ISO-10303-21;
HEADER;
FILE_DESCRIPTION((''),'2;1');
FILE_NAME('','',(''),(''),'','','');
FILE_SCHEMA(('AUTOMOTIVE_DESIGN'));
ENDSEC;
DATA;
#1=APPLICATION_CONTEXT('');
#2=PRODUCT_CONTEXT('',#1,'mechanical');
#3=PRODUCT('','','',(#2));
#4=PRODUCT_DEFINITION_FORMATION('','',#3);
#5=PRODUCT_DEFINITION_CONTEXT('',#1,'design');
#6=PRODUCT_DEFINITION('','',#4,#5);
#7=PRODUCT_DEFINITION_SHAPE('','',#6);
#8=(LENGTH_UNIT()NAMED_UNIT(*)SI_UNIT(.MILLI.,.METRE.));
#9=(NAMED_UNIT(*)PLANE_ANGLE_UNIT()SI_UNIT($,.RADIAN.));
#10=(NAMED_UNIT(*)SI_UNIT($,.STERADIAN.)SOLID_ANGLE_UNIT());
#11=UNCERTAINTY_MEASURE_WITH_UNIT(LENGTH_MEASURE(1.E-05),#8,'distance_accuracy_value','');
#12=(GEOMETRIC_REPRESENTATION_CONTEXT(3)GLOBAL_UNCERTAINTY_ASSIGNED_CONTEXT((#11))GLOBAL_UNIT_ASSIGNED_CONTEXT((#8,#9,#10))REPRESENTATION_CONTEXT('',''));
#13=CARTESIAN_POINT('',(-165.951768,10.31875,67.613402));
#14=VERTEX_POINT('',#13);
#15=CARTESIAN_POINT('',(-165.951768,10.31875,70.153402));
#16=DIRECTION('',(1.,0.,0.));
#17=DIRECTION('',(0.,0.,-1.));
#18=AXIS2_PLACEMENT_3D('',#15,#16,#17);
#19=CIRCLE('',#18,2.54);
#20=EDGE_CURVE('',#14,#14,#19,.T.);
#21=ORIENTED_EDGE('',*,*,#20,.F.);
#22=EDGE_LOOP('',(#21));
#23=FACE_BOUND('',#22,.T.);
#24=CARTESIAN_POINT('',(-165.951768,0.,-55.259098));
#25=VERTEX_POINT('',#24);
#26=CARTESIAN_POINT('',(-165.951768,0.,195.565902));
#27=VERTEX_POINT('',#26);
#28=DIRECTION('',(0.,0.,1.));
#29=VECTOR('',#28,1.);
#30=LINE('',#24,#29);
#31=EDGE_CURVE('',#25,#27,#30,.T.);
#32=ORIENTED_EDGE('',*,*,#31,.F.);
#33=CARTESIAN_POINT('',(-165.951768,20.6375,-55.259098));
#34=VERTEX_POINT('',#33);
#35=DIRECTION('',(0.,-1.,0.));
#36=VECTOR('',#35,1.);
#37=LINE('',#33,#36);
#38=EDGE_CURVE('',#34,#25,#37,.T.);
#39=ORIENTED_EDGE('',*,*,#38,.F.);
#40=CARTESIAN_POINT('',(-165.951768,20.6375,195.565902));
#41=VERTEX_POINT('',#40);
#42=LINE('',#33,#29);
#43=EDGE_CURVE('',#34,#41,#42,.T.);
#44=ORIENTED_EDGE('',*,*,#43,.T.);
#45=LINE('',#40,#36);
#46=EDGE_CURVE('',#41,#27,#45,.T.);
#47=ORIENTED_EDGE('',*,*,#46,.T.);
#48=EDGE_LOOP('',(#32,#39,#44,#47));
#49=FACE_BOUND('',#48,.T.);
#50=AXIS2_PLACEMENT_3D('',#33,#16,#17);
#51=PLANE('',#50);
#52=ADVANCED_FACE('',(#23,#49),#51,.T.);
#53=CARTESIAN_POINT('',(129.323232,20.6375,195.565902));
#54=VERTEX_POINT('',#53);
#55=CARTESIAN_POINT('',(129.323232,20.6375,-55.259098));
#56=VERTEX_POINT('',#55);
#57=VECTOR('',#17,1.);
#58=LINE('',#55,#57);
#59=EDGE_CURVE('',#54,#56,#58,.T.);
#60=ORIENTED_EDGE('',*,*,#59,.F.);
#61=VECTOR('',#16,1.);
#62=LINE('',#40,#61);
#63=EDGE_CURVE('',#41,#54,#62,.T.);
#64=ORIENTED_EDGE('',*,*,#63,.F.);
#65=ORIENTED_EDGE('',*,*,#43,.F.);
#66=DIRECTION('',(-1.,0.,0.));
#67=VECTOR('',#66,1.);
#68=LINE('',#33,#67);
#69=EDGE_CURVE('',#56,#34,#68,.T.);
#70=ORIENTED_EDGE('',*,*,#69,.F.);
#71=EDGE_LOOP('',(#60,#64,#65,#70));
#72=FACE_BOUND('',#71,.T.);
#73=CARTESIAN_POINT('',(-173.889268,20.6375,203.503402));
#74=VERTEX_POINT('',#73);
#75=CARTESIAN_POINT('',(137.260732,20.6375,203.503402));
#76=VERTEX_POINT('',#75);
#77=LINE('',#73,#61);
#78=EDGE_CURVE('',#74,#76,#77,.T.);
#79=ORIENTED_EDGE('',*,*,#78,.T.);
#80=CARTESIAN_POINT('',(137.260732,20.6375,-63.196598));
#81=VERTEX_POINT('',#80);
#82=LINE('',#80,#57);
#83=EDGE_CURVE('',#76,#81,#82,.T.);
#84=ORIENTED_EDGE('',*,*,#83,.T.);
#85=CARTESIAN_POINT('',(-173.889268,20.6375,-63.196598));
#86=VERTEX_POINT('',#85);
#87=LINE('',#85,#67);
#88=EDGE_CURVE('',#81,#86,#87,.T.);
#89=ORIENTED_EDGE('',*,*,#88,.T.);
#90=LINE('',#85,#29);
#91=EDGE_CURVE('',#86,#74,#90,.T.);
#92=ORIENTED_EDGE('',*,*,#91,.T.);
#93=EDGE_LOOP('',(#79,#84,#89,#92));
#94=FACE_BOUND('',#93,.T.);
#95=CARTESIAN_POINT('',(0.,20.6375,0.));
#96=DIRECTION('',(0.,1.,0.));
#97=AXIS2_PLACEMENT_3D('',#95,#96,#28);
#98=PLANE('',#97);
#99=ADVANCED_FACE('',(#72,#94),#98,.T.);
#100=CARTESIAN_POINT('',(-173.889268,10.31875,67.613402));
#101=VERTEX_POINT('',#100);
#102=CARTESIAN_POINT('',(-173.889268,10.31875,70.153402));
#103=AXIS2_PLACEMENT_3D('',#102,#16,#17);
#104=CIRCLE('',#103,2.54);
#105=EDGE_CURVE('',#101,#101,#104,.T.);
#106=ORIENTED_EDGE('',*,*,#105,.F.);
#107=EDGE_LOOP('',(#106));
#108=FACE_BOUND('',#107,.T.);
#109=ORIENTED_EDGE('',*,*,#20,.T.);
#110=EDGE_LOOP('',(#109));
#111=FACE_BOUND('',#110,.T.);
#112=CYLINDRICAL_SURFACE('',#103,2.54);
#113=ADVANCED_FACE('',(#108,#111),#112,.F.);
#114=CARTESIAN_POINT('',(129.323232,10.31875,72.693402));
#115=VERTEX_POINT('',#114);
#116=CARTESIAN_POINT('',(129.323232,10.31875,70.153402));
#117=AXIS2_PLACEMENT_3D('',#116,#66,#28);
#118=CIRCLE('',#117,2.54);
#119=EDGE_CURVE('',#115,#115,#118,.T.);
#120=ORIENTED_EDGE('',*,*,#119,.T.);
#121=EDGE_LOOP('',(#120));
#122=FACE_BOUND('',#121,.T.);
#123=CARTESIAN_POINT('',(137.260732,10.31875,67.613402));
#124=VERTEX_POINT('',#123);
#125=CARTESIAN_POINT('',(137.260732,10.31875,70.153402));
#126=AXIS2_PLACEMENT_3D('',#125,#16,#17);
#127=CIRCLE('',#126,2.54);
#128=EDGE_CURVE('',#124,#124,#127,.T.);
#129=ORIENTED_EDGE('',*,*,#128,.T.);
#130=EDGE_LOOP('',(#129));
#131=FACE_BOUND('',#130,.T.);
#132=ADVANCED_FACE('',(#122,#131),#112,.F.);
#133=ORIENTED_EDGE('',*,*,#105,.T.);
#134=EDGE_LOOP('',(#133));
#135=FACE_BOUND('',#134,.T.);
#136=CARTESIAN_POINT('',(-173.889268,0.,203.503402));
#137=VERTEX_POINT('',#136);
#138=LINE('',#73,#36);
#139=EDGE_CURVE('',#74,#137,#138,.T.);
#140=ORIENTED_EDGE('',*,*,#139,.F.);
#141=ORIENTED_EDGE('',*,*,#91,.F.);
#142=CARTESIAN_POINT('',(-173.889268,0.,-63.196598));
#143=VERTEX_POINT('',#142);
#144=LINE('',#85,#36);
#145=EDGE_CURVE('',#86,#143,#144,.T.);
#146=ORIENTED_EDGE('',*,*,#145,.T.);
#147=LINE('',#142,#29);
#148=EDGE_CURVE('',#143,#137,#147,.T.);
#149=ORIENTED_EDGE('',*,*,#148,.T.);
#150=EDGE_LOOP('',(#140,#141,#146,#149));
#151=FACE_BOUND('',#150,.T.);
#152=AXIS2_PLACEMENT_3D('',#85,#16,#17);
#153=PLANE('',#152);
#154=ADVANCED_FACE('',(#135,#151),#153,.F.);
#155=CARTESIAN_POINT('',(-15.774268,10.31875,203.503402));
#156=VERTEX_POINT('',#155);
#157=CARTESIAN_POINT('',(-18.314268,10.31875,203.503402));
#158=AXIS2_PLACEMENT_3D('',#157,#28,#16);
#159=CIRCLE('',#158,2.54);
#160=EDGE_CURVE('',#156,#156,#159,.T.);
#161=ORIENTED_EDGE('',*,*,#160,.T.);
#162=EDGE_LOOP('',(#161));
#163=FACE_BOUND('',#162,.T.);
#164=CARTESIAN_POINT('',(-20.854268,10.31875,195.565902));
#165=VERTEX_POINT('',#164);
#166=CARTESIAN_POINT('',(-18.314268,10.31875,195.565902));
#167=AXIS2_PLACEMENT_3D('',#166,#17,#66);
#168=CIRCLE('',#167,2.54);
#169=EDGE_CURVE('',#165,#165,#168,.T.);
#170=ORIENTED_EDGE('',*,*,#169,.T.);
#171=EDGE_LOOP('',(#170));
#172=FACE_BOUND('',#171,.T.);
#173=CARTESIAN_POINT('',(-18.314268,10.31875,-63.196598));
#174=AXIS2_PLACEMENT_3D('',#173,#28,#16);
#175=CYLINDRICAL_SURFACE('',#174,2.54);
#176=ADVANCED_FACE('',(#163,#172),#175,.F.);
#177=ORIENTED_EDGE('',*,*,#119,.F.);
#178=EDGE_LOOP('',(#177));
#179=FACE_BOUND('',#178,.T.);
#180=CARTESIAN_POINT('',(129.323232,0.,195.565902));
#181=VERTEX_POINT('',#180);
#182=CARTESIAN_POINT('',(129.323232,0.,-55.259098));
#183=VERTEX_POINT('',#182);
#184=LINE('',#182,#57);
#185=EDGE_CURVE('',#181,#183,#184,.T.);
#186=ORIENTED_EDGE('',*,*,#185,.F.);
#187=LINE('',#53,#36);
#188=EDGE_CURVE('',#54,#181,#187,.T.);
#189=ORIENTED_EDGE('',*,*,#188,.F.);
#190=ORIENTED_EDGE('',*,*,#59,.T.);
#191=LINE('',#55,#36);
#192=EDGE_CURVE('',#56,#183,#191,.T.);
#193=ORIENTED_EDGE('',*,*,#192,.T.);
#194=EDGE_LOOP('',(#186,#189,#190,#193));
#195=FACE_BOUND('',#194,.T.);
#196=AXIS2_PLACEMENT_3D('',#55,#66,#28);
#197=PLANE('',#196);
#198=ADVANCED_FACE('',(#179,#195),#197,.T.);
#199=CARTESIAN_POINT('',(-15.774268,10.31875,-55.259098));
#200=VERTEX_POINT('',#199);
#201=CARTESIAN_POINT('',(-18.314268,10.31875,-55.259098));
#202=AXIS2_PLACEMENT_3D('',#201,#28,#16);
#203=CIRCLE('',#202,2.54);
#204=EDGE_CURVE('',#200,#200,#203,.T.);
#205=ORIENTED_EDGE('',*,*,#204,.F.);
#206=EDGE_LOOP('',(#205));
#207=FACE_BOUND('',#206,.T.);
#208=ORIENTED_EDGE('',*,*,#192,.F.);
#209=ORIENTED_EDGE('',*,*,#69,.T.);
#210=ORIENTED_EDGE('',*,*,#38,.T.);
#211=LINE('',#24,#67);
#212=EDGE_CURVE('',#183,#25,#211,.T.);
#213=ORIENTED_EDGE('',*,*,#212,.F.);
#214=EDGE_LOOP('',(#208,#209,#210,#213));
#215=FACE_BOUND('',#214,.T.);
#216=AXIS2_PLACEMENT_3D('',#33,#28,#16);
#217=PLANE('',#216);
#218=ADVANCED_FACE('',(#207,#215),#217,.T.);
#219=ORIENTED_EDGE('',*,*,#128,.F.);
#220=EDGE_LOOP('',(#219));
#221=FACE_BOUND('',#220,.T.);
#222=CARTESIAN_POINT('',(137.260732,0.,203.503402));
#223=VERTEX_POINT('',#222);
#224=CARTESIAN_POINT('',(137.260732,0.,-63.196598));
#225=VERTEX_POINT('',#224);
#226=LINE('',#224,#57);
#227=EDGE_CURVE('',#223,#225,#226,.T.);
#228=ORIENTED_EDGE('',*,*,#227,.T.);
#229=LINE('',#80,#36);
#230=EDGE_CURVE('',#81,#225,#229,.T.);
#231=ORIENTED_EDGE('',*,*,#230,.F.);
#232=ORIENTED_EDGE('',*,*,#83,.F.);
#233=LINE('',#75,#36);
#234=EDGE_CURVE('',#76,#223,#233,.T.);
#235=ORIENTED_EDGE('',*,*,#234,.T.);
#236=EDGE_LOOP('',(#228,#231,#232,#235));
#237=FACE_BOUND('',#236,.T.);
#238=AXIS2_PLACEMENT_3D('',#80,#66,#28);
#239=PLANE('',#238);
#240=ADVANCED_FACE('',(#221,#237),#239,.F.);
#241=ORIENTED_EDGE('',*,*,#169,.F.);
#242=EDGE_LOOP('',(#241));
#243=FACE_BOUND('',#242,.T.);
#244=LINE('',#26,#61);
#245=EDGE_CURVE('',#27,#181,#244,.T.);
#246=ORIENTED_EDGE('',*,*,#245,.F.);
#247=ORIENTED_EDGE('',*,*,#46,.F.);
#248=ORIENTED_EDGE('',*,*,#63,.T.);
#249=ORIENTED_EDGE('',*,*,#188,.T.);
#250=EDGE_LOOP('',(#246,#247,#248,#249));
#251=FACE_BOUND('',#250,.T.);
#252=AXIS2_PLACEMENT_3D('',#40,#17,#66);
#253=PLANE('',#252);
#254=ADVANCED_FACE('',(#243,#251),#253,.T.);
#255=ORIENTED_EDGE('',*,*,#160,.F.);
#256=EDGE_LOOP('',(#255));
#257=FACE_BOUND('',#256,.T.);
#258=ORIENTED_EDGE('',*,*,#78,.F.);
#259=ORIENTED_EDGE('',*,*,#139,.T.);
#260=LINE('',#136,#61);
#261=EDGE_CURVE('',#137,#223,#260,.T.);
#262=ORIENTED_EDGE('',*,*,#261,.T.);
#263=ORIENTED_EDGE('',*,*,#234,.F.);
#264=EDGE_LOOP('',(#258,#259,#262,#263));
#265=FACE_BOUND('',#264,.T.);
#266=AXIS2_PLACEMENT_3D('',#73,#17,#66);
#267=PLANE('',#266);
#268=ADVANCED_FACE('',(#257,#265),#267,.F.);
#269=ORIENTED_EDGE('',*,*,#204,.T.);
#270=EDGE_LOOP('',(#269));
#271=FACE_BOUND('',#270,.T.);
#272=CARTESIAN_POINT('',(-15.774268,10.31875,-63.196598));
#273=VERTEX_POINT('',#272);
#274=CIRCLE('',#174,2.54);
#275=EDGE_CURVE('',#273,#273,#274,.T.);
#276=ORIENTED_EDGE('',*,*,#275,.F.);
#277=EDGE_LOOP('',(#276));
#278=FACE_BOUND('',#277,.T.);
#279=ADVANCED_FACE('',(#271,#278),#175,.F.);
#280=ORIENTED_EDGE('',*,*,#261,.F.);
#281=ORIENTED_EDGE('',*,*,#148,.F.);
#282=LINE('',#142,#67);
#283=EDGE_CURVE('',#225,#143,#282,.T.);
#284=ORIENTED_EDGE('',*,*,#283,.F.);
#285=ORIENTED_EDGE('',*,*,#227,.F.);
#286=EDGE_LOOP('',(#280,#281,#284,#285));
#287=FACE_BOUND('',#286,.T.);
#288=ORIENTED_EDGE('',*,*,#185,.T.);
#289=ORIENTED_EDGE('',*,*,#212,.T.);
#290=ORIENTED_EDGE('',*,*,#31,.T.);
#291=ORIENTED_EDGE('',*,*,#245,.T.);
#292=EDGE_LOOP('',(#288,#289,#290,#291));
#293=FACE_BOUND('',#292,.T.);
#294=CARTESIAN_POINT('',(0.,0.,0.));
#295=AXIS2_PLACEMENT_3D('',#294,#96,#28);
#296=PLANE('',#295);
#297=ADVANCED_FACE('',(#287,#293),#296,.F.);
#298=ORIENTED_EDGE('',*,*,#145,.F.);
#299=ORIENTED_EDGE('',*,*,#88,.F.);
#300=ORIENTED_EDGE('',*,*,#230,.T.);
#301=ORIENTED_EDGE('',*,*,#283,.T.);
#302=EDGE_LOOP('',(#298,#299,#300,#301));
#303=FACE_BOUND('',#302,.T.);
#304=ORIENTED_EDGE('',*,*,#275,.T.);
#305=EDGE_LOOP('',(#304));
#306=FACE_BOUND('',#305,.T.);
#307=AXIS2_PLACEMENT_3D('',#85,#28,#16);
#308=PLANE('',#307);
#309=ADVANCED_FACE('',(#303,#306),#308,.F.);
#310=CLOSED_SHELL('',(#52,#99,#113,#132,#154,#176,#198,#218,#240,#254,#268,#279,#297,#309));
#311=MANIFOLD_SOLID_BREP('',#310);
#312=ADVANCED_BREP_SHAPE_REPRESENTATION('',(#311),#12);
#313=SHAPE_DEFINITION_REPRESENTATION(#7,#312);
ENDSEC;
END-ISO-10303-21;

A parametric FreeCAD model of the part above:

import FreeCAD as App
import Part
import Sketcher

V = App.Vector
Q = App.Units.Quantity


def add_polygon(sketch, points):
    """Adds a closed chain of lines whose ends are joined by coincident constraints."""
    first, n = sketch.GeometryCount, len(points)
    for a, b in zip(points, points[1:] + points[:1]):
        sketch.addGeometry(Part.LineSegment(App.Vector(*a, 0), App.Vector(*b, 0)), False)
    for i in range(n):
        sketch.addConstraint(Sketcher.Constraint("Coincident", first + i, 2, first + (i + 1) % n, 1))

doc = App.newDocument("Part")
body = doc.addObject("PartDesign::Body", "Body")

sketch1 = body.newObject("Sketcher::SketchObject", "Sketch")
sketch1.AttachmentSupport = (doc.getObject("XZ_Plane"), [""])
sketch1.MapMode = "FlatFace"
add_polygon(sketch1, [(-173.889268, -63.196598), (-173.889268, 203.503402), (137.260732, 203.503402), (137.260732, -63.196598)])
add_polygon(sketch1, [(129.323232, 195.565902), (-165.951768, 195.565902), (-165.951768, -55.259098), (129.323232, -55.259098)])
sketch1.addConstraint(Sketcher.Constraint("Vertical", 0))
sketch1.addConstraint(Sketcher.Constraint("Horizontal", 1))
sketch1.addConstraint(Sketcher.Constraint("Vertical", 2))
sketch1.addConstraint(Sketcher.Constraint("Horizontal", 3))
sketch1.addConstraint(Sketcher.Constraint("Horizontal", 4))
sketch1.addConstraint(Sketcher.Constraint("Vertical", 5))
sketch1.addConstraint(Sketcher.Constraint("Horizontal", 6))
sketch1.addConstraint(Sketcher.Constraint("Vertical", 7))
sketch1.addConstraint(Sketcher.Constraint("DistanceY", 0, 1, 0, 2, Q("10.5 in")))
sketch1.addConstraint(Sketcher.Constraint("DistanceX", 1, 1, 1, 2, Q("12.25 in")))
sketch1.addConstraint(Sketcher.Constraint("DistanceX", 4, 2, 4, 1, Q("11.625 in")))
sketch1.addConstraint(Sketcher.Constraint("DistanceY", 5, 2, 5, 1, Q("9.875 in")))
sketch1.addConstraint(Sketcher.Constraint("DistanceX", 0, 2, 4, 2, Q("0.3125 in")))
sketch1.addConstraint(Sketcher.Constraint("DistanceY", 4, 2, 0, 2, Q("0.3125 in")))
sketch1.addConstraint(Sketcher.Constraint("DistanceY", -1, 1, 0, 2, Q("203.503402 mm")))
sketch1.addConstraint(Sketcher.Constraint("DistanceX", 0, 2, -1, 1, Q("173.889268 mm")))
pad1 = body.newObject("PartDesign::Pad", "Pad")
pad1.Profile = sketch1
pad1.Length = Q("0.8125 in")
pad1.Reversed = True

sketch2 = body.newObject("Sketcher::SketchObject", "Sketch001")
sketch2.AttachmentSupport = (doc.getObject("XY_Plane"), [""])
sketch2.MapMode = "FlatFace"
sketch2.AttachmentOffset = App.Placement(V(0, 0, 203.503402), App.Rotation())
sketch2.addGeometry(Part.Circle(V(-18.314268, 10.31875, 0), V(0, 0, 1), 2.54), False)
sketch2.addConstraint(Sketcher.Constraint("Diameter", 0, Q("0.2 in")))
sketch2.addConstraint(Sketcher.Constraint("DistanceY", -1, 1, 0, 3, Q("0.40625 in")))
sketch2.addConstraint(Sketcher.Constraint("DistanceX", 0, 3, -1, 1, Q("18.314268 mm")))
pocket1 = body.newObject("PartDesign::Pocket", "Pocket")
pocket1.Profile = sketch2
pocket1.Type = "ThroughAll"

sketch3 = body.newObject("Sketcher::SketchObject", "Sketch002")
sketch3.AttachmentSupport = (doc.getObject("YZ_Plane"), [""])
sketch3.MapMode = "FlatFace"
sketch3.AttachmentOffset = App.Placement(V(0, 0, 137.260732), App.Rotation())
sketch3.addGeometry(Part.Circle(V(10.31875, 70.153402, 0), V(0, 0, 1), 2.54), False)
sketch3.addConstraint(Sketcher.Constraint("Diameter", 0, Q("0.2 in")))
sketch3.addConstraint(Sketcher.Constraint("DistanceX", -1, 1, 0, 3, Q("0.40625 in")))
sketch3.addConstraint(Sketcher.Constraint("DistanceY", -1, 1, 0, 3, Q("70.153402 mm")))
pocket2 = body.newObject("PartDesign::Pocket", "Pocket001")
pocket2.Profile = sketch3
pocket2.Type = "ThroughAll"

doc.recompute()
